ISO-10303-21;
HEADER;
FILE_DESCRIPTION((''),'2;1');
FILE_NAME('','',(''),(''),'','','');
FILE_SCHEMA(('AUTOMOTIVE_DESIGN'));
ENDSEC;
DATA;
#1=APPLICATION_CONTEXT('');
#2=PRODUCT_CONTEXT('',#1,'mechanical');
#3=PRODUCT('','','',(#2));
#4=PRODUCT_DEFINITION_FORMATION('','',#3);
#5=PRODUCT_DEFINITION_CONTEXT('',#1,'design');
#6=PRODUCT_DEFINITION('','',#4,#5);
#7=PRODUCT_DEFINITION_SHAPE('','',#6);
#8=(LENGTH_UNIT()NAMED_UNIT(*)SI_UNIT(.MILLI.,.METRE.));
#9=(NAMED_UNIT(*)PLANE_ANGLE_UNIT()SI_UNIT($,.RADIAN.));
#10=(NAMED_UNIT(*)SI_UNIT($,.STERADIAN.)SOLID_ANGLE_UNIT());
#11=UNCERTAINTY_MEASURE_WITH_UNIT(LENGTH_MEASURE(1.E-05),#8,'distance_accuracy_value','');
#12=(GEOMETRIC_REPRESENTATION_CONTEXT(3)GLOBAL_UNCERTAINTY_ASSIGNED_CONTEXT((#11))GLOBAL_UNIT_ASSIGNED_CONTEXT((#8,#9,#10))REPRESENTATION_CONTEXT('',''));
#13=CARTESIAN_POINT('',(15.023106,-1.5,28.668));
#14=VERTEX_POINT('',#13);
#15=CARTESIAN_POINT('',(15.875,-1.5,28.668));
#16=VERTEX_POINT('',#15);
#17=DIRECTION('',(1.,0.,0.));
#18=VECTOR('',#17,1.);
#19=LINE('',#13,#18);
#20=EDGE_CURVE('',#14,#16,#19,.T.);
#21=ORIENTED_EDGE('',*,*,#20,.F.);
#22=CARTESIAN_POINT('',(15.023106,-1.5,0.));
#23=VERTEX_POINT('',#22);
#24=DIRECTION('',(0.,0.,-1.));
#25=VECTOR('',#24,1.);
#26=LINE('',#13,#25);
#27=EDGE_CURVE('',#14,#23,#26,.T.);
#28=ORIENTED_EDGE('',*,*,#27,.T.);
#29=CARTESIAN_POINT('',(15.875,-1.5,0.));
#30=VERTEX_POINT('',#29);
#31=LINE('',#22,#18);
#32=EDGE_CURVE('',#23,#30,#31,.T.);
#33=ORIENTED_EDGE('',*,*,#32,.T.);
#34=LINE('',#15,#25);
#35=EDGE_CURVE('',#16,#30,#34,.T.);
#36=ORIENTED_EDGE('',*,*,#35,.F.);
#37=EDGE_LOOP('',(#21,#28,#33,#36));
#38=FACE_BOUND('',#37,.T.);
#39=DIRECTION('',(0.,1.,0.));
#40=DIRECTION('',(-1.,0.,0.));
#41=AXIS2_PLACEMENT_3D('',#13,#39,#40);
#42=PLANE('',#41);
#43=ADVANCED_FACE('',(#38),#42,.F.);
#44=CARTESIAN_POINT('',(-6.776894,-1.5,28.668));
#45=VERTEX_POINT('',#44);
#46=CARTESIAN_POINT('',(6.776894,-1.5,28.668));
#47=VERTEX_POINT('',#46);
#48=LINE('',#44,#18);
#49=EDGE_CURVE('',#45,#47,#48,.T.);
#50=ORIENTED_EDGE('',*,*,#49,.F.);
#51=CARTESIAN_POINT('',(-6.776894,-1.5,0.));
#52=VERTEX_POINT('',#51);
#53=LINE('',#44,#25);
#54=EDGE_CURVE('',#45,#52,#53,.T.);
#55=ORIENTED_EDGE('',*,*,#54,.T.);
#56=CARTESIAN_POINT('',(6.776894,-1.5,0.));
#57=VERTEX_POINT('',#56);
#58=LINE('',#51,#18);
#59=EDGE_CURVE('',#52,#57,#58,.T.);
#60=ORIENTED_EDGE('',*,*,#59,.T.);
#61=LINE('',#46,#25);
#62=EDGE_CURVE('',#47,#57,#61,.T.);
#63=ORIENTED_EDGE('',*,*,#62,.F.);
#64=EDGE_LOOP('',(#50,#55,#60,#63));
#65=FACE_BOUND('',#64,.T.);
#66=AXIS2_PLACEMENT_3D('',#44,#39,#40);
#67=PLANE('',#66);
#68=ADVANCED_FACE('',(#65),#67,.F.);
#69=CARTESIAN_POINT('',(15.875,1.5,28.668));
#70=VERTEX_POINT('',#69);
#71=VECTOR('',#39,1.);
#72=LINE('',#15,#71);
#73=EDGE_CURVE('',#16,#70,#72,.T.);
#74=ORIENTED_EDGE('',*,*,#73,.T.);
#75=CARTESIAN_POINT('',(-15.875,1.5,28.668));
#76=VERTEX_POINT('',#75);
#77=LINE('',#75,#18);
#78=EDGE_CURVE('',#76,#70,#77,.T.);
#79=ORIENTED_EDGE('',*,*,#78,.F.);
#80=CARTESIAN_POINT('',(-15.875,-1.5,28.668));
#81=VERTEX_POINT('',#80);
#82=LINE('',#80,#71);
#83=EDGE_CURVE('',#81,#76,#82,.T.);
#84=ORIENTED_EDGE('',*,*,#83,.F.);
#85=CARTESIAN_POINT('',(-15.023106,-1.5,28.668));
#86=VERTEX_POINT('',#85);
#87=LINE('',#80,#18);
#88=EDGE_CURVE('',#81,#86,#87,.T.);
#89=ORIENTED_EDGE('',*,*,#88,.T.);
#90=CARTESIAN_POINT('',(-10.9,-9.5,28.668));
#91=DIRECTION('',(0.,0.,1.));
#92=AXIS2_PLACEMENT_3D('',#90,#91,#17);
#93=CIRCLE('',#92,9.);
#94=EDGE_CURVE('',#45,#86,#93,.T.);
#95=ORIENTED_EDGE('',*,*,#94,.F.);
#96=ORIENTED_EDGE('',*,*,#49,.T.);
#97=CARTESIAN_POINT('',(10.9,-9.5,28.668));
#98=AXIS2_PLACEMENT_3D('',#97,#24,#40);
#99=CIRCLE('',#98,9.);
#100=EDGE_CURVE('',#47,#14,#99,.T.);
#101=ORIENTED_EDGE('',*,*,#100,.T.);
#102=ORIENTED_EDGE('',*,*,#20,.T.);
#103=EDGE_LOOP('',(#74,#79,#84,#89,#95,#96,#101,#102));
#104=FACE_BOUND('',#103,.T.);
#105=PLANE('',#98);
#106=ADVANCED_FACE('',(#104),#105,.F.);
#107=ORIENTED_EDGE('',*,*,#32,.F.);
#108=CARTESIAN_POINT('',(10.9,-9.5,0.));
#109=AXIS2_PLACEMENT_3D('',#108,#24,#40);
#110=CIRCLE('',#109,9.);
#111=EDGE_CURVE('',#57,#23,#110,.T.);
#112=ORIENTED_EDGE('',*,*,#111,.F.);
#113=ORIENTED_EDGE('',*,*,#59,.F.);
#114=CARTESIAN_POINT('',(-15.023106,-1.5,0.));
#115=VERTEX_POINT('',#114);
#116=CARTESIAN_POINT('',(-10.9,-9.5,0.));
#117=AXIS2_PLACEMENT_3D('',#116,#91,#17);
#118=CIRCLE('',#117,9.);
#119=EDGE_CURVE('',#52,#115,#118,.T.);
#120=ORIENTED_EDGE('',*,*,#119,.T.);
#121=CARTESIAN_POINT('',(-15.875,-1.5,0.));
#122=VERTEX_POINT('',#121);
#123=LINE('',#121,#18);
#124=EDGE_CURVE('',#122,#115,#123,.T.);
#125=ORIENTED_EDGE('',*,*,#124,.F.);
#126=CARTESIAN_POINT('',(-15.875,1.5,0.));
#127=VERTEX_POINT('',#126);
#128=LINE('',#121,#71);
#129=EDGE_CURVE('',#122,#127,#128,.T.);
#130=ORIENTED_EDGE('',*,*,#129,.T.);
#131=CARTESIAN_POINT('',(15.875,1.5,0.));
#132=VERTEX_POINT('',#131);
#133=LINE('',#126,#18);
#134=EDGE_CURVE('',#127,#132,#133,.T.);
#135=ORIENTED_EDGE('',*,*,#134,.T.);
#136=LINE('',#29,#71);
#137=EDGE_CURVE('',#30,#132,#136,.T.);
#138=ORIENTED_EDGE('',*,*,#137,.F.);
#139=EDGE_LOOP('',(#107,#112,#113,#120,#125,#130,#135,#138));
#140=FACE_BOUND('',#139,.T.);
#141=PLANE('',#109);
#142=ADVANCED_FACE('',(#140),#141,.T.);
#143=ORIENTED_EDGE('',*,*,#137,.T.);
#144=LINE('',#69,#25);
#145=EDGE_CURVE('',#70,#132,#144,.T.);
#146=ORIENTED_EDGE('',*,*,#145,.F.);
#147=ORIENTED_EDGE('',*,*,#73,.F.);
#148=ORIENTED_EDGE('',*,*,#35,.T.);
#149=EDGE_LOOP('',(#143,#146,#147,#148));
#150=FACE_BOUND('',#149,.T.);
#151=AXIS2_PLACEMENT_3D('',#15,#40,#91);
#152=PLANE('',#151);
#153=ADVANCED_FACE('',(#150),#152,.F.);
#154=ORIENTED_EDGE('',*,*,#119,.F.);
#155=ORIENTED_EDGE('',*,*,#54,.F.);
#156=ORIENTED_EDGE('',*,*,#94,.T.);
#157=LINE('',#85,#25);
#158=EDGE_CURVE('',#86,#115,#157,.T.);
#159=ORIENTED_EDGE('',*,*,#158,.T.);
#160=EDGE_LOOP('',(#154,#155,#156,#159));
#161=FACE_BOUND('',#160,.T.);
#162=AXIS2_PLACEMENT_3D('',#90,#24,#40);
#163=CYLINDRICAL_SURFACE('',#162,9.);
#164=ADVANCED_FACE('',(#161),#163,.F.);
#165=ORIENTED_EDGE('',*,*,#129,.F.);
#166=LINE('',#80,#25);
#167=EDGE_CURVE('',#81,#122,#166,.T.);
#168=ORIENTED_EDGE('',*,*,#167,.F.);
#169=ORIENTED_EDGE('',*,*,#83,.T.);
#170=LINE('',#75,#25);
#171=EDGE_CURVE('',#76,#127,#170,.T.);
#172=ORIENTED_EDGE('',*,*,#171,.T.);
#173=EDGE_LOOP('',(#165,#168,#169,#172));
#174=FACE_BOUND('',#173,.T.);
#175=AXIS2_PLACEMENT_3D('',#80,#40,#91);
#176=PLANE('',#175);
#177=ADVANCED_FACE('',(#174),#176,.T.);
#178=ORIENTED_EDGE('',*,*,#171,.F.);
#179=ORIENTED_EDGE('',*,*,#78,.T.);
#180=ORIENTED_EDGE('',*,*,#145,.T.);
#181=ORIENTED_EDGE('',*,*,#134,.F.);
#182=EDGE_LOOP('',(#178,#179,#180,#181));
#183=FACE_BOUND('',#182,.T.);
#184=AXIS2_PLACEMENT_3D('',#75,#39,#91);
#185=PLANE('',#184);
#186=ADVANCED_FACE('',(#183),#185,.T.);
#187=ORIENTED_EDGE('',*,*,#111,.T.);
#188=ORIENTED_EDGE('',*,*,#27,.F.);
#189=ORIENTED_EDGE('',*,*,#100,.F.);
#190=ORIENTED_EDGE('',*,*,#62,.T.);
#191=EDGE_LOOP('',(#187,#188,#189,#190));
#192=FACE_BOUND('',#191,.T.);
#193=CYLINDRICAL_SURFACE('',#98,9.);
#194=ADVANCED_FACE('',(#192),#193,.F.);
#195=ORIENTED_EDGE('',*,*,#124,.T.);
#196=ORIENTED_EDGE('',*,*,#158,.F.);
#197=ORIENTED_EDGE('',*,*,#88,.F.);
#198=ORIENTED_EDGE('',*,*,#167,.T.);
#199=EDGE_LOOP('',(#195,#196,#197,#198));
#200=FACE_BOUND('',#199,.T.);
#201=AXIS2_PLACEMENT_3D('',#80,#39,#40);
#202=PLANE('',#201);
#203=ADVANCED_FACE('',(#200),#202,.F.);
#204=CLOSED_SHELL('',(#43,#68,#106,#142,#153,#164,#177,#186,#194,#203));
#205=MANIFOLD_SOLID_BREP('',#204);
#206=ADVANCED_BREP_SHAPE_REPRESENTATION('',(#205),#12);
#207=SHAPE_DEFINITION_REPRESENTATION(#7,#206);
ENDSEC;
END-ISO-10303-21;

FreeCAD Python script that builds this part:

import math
import FreeCAD as App
import Part
import Sketcher

doc = App.newDocument("Part")
body = doc.addObject("PartDesign::Body", "Body")

# Sketch on XY plane
sketch1 = doc.addObject("Sketcher::SketchObject", "Sketch")
body.addObject(sketch1)
sketch1.AttachmentSupport = (doc.XY_Plane, [""])
sketch1.MapMode = "FlatFace"
sketch1.addGeometry([
    Part.LineSegment(App.Vector(-15.9, -1.5, 0), App.Vector(-15, -1.5, 0)),  # 0
    Part.ArcOfCircle(Part.Circle(App.Vector(-10.9, -9.5, 0), App.Vector(0, 0, 1), 9), math.radians(63), math.radians(117)),  # 1
    Part.LineSegment(App.Vector(-6.8, -1.5, 0), App.Vector(6.8, -1.5, 0)),  # 2
    Part.ArcOfCircle(Part.Circle(App.Vector(10.9, -9.5, 0), App.Vector(0, 0, 1), 9), math.radians(63), math.radians(117)),  # 3
    Part.LineSegment(App.Vector(15, -1.5, 0), App.Vector(15.9, -1.5, 0)),  # 4
    Part.LineSegment(App.Vector(15.9, -1.5, 0), App.Vector(15.9, 1.5, 0)),  # 5
    Part.LineSegment(App.Vector(15.9, 1.5, 0), App.Vector(-15.9, 1.5, 0)),  # 6
    Part.LineSegment(App.Vector(-15.9, 1.5, 0), App.Vector(-15.9, -1.5, 0)),  # 7
], False)
sketch1.addConstraint([
    Sketcher.Constraint("Coincident", 0, 2, 1, 2),
    Sketcher.Constraint("Coincident", 1, 1, 2, 1),
    Sketcher.Constraint("Coincident", 2, 2, 3, 2),
    Sketcher.Constraint("Coincident", 3, 1, 4, 1),
    Sketcher.Constraint("Coincident", 4, 2, 5, 1),
    Sketcher.Constraint("Coincident", 5, 2, 6, 1),
    Sketcher.Constraint("Coincident", 6, 2, 7, 1),
    Sketcher.Constraint("Coincident", 7, 2, 0, 1),
    Sketcher.Constraint("Horizontal", 0),
    Sketcher.Constraint("Horizontal", 2),
    Sketcher.Constraint("Horizontal", 4),
    Sketcher.Constraint("Vertical", 5),
    Sketcher.Constraint("Horizontal", 6),
    Sketcher.Constraint("Vertical", 7),
    Sketcher.Constraint("Equal", 1, 3),
    Sketcher.Constraint("Symmetric", 4, 2, 6, 2, -1, 1),
    Sketcher.Constraint("Symmetric", 1, 3, 3, 3, -2),
    Sketcher.Constraint("Horizontal", 0, 2, 1, 1),
    Sketcher.Constraint("Horizontal", 2, 2, 3, 1),
    Sketcher.Constraint("Radius", 1, 9.0),
    Sketcher.Constraint("DistanceY", 5, 1, 5, 2, 3.0),
    Sketcher.Constraint("DistanceY", 1, 3, 0, 2, 8.0),
    Sketcher.Constraint("DistanceX", 6, 2, 6, 1, 31.75),
    Sketcher.Constraint("DistanceX", 1, 3, -1, 1, 10.9),
])
pad1 = doc.addObject("PartDesign::Pad", "Pad")
body.addObject(pad1)
pad1.Profile = sketch1
pad1.Length = 28.668

doc.recompute()
